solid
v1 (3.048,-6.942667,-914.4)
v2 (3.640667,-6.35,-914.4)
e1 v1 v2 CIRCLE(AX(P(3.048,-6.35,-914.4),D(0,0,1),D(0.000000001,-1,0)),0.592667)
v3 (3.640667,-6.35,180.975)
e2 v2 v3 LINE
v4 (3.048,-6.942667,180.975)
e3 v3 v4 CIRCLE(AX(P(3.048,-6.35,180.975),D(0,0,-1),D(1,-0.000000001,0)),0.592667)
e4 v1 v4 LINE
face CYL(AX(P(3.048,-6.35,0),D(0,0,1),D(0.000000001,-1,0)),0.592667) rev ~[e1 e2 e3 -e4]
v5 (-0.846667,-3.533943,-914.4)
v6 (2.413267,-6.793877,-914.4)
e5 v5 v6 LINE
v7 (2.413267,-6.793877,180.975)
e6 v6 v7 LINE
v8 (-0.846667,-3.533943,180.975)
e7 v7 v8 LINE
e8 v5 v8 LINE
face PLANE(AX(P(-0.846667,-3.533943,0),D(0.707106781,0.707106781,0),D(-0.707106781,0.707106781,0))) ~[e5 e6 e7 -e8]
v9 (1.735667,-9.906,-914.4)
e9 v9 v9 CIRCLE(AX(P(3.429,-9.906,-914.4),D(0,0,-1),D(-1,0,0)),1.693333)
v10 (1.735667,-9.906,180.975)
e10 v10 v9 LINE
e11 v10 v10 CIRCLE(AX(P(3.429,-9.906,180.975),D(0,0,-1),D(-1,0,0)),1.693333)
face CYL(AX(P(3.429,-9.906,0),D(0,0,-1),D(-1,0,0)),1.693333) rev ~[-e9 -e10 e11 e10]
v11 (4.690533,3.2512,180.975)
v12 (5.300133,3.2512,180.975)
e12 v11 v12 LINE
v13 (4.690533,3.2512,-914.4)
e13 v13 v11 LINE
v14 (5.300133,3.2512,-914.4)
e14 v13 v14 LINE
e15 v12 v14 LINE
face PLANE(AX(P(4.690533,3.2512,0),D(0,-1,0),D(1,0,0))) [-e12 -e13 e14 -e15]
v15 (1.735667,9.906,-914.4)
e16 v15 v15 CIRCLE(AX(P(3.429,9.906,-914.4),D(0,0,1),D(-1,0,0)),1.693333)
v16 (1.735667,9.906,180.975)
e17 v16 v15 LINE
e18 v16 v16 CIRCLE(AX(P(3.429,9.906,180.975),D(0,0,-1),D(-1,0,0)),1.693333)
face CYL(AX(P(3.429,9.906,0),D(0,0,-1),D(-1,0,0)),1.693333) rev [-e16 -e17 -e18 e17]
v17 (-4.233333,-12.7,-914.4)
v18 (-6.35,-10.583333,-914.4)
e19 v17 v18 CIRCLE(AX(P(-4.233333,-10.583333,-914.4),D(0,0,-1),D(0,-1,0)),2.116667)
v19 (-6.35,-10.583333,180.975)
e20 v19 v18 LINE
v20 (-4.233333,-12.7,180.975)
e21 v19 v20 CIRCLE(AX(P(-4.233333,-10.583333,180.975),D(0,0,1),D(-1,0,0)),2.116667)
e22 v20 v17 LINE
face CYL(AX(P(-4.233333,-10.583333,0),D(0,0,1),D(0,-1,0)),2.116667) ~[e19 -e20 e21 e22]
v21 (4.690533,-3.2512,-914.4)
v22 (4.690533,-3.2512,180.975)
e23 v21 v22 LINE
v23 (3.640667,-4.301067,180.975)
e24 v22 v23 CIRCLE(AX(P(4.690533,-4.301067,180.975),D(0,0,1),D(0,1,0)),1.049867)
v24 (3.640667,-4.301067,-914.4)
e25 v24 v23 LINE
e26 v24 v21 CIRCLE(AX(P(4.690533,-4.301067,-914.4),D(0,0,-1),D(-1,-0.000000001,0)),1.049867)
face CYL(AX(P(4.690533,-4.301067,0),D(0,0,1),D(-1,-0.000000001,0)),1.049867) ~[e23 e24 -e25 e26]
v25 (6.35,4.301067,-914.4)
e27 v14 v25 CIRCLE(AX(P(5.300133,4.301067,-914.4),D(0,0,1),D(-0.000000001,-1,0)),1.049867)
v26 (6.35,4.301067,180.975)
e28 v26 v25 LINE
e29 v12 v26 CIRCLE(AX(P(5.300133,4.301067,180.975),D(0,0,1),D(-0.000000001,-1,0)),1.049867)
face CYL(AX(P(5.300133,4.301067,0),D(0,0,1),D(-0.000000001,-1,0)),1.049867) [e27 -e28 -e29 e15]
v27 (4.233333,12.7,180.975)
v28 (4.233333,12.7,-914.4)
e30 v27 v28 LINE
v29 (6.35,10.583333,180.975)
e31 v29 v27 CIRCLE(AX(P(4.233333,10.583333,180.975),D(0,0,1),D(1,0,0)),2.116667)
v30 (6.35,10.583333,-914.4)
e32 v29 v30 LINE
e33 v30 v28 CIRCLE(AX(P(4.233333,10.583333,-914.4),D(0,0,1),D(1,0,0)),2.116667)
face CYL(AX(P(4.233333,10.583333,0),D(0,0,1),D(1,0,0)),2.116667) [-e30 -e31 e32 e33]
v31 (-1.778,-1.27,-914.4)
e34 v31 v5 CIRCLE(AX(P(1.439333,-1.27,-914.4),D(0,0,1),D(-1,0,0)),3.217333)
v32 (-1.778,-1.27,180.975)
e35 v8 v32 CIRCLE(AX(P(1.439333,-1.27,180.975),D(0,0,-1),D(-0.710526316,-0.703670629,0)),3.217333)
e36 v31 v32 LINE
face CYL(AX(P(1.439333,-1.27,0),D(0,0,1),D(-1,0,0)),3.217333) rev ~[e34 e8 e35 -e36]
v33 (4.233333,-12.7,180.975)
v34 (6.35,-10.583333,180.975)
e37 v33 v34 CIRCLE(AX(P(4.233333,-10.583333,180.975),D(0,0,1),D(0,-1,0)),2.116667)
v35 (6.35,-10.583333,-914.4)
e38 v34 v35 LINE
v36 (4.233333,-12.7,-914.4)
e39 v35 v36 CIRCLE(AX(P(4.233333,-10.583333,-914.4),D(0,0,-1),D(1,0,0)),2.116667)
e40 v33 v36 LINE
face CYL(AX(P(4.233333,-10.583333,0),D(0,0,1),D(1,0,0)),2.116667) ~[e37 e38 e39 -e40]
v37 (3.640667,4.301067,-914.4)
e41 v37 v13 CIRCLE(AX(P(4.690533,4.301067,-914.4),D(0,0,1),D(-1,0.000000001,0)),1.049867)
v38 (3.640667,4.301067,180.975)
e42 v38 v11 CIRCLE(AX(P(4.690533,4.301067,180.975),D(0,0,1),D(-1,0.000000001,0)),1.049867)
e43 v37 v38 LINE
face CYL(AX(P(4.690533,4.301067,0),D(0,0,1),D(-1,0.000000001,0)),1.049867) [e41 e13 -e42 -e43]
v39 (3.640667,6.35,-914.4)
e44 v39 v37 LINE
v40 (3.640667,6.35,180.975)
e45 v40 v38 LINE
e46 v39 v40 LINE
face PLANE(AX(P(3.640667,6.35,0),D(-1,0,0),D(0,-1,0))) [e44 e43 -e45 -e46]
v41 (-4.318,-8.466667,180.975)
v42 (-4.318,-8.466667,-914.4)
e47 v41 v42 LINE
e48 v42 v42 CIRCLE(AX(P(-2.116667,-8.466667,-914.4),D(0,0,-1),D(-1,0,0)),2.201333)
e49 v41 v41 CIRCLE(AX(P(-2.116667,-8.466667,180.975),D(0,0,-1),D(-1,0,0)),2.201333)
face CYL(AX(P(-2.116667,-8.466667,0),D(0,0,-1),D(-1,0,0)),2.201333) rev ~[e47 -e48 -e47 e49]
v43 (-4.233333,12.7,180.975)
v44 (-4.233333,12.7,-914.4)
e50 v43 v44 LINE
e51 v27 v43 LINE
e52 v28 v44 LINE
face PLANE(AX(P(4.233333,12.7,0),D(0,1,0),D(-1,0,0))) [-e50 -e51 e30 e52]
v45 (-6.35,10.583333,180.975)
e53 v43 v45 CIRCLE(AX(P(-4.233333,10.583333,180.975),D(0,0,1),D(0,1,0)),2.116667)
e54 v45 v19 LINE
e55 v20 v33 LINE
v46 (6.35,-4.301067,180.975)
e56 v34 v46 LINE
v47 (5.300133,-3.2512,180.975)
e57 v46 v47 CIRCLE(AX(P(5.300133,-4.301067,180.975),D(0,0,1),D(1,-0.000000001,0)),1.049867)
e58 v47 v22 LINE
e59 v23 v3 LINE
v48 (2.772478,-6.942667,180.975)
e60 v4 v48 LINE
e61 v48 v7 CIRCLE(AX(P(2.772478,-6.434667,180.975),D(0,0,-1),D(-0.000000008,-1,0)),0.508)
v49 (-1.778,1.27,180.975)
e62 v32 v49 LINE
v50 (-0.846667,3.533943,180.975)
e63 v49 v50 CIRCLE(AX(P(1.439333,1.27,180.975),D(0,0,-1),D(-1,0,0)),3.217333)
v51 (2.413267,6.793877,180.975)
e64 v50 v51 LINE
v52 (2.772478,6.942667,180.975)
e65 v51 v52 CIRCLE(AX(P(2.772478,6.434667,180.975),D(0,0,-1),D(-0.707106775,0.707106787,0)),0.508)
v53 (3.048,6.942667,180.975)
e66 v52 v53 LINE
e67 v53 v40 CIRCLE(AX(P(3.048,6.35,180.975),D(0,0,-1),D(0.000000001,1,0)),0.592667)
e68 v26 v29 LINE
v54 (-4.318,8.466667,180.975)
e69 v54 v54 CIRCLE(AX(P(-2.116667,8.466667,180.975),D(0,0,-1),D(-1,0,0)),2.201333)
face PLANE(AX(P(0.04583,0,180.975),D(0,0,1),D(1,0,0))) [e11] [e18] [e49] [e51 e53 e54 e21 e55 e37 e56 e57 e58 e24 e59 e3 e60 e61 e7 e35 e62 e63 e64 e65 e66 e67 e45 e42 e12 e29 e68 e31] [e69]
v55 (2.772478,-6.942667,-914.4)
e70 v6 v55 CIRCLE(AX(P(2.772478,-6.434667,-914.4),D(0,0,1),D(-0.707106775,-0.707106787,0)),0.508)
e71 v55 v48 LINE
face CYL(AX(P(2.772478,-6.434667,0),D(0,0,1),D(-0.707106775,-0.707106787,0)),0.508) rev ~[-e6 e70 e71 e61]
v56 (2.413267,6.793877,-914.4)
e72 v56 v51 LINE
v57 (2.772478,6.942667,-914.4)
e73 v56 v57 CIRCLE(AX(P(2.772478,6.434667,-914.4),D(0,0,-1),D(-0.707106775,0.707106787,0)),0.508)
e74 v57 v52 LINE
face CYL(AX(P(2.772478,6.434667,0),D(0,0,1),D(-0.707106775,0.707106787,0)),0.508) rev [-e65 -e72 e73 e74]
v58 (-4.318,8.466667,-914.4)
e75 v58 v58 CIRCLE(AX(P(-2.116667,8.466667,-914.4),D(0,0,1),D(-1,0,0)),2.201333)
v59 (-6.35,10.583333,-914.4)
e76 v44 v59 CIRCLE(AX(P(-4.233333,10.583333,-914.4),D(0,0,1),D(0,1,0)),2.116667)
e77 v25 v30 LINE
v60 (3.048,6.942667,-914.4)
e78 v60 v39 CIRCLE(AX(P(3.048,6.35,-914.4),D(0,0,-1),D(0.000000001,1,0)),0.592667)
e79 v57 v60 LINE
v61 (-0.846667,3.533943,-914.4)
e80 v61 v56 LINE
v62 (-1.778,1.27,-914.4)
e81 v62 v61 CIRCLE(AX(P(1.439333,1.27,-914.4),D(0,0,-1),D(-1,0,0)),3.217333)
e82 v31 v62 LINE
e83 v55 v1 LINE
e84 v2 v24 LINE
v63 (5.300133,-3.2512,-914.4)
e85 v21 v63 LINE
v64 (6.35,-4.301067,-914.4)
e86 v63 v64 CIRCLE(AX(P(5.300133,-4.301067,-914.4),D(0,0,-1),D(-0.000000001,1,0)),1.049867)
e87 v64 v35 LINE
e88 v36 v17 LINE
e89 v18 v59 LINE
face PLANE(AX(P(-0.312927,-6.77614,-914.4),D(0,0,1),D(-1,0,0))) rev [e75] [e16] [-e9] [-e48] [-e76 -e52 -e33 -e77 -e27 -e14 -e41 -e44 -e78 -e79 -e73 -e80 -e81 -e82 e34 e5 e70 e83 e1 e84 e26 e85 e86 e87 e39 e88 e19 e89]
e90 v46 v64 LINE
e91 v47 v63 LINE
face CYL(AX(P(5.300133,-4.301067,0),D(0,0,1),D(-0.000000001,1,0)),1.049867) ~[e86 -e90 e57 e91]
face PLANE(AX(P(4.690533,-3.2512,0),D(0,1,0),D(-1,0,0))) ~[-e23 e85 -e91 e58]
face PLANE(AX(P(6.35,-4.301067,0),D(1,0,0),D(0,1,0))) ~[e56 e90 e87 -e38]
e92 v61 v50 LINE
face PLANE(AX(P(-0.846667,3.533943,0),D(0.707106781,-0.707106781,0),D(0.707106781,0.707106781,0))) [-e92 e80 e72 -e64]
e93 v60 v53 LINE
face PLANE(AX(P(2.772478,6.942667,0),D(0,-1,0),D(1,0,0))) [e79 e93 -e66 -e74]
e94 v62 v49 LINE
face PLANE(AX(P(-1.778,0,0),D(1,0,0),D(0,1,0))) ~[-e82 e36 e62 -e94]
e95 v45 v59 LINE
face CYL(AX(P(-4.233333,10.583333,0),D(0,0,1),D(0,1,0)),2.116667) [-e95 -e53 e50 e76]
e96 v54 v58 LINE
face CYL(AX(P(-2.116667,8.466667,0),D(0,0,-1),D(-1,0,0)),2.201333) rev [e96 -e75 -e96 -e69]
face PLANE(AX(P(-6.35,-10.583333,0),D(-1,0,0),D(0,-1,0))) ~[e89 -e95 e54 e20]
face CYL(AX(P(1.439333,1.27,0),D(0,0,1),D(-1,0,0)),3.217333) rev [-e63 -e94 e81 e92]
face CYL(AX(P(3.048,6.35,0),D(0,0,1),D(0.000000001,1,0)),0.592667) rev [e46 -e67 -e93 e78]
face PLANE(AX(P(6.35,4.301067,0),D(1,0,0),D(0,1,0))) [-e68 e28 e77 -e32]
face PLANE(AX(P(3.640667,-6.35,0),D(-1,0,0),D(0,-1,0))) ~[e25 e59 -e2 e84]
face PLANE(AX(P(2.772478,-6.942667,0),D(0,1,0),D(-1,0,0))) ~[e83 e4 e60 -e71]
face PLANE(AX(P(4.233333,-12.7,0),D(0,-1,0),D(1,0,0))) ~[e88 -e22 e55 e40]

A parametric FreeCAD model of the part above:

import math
import FreeCAD as App
import Part
import Sketcher
from FreeCAD import Vector
Q = App.Units.Quantity

doc = App.newDocument("Part")
body = doc.addObject("PartDesign::Body", "Body")

sketch1 = body.newObject("Sketcher::SketchObject", "Sketch")
sketch1.AttachmentSupport = (doc.getObject("XY_Plane"), [""])
sketch1.MapMode = "FlatFace"
sketch1.addGeometry([
    Part.LineSegment(Vector(-1.778, 0, 0), Vector(-1.778, 1.27, 0)),
    Part.ArcOfCircle(Part.Circle(Vector(1.439333, 1.27, 0), Vector(0, 0, 1), 3.217333), math.radians(135.277754), math.radians(180)),
    Part.LineSegment(Vector(-0.846667, 3.533943, 0), Vector(2.413267, 6.793877, 0)),
    Part.ArcOfCircle(Part.Circle(Vector(2.772478, 6.434667, 0), Vector(0, 0, 1), 0.508), math.radians(90), math.radians(135)),
    Part.LineSegment(Vector(2.772478, 6.942667, 0), Vector(3.048, 6.942667, 0)),
    Part.ArcOfCircle(Part.Circle(Vector(3.048, 6.35, 0), Vector(0, 0, 1), 0.592667), math.radians(0), math.radians(90)),
    Part.LineSegment(Vector(3.640667, 6.35, 0), Vector(3.640667, 4.301067, 0)),
    Part.ArcOfCircle(Part.Circle(Vector(4.690533, 4.301067, 0), Vector(0, 0, 1), 1.049867), math.radians(180), math.radians(270)),
    Part.LineSegment(Vector(4.690533, 3.2512, 0), Vector(5.300133, 3.2512, 0)),
    Part.ArcOfCircle(Part.Circle(Vector(5.300133, 4.301067, 0), Vector(0, 0, 1), 1.049867), math.radians(-90), math.radians(0)),
    Part.LineSegment(Vector(6.35, 4.301067, 0), Vector(6.35, 10.583333, 0)),
    Part.ArcOfCircle(Part.Circle(Vector(4.233333, 10.583333, 0), Vector(0, 0, 1), 2.116667), math.radians(0), math.radians(90)),
    Part.LineSegment(Vector(4.233333, 12.7, 0), Vector(-4.233333, 12.7, 0)),
    Part.ArcOfCircle(Part.Circle(Vector(-4.233333, 10.583333, 0), Vector(0, 0, 1), 2.116667), math.radians(90), math.radians(180)),
    Part.LineSegment(Vector(-6.35, 10.583333, 0), Vector(-6.35, 0, 0)),
    Part.LineSegment(Vector(-6.35, 0, 0), Vector(-1.778, 0, 0)),
    Part.Circle(Vector(-2.116667, 8.466667, 0), Vector(0, 0, 1), 2.201333),
    Part.Circle(Vector(3.429, 9.906, 0), Vector(0, 0, 1), 1.693333),
], False)
sketch1.addConstraint([
    Sketcher.Constraint("Tangent", 0, 2, 1, 2),
    Sketcher.Constraint("Coincident", 1, 1, 2, 1),
    Sketcher.Constraint("Tangent", 2, 2, 3, 2),
    Sketcher.Constraint("Tangent", 3, 1, 4, 1),
    Sketcher.Constraint("Tangent", 4, 2, 5, 2),
    Sketcher.Constraint("Tangent", 5, 1, 6, 1),
    Sketcher.Constraint("Tangent", 6, 2, 7, 1),
    Sketcher.Constraint("Tangent", 7, 2, 8, 1),
    Sketcher.Constraint("Tangent", 8, 2, 9, 1),
    Sketcher.Constraint("Tangent", 9, 2, 10, 1),
    Sketcher.Constraint("Tangent", 10, 2, 11, 1),
    Sketcher.Constraint("Tangent", 11, 2, 12, 1),
    Sketcher.Constraint("Tangent", 12, 2, 13, 1),
    Sketcher.Constraint("Tangent", 13, 2, 14, 1),
    Sketcher.Constraint("Coincident", 14, 2, 15, 1),
    Sketcher.Constraint("Coincident", 15, 2, 0, 1),
    Sketcher.Constraint("Vertical", 0),
    Sketcher.Constraint("Horizontal", 4),
    Sketcher.Constraint("Vertical", 6),
    Sketcher.Constraint("Horizontal", 8),
    Sketcher.Constraint("Vertical", 10),
    Sketcher.Constraint("Horizontal", 12),
    Sketcher.Constraint("Vertical", 14),
    Sketcher.Constraint("Horizontal", 15),
    Sketcher.Constraint("Equal", 7, 9),
    Sketcher.Constraint("Equal", 11, 13),
    Sketcher.Constraint("PointOnObject", 14, 2, -1),
    Sketcher.Constraint("Radius", 3, Q("0.02 in")),
    Sketcher.Constraint("Angle", 2, Q("45 deg")),
    Sketcher.Constraint("DistanceX", 15, 1, 15, 2, Q("0.18 in")),
    Sketcher.Constraint("DistanceY", 0, 1, 0, 2, Q("0.05 in")),
    Sketcher.Constraint("DistanceY", -1, 1, 11, 2, Q("0.5 in")),
    Sketcher.Constraint("DistanceY", 1, 3, 5, 3, Q("0.2 in")),
    Sketcher.Constraint("DistanceX", 8, 1, 8, 2, Q("0.024 in")),
    Sketcher.Constraint("DistanceX", -1, 1, 5, 3, Q("0.12 in")),
    Sketcher.Constraint("DistanceY", -1, 1, 17, 3, Q("0.39 in")),
    Sketcher.Constraint("DistanceX", 0, 2, -1, 1, Q("0.07 in")),
    Sketcher.Constraint("DistanceX", -1, 1, 9, 2, Q("0.25 in")),
    Sketcher.Constraint("DistanceX", 1, 3, 11, 3, Q("0.11 in")),
    Sketcher.Constraint("DistanceY", 3, 3, 16, 3, Q("0.08 in")),
    Sketcher.Constraint("DistanceX", 16, 3, 11, 3, Q("0.25 in")),
    Sketcher.Constraint("DistanceX", 1, 1, 1, 3, Q("0.09 in")),
    Sketcher.Constraint("DistanceX", -1, 1, 17, 3, Q("0.135 in")),
    Sketcher.Constraint("DistanceY", -1, 1, 7, 2, Q("0.128 in")),
    Sketcher.Constraint("DistanceY", 7, 3, 3, 3, Q("0.084 in")),
    Sketcher.Constraint("DistanceX", 1, 3, 7, 3, Q("0.128 in")),
    Sketcher.Constraint("Diameter", 16, Q("4.402667 mm")),
    Sketcher.Constraint("Diameter", 17, Q("3.386667 mm")),
])
pad1 = body.newObject("PartDesign::Pad", "Pad")
pad1.Profile = sketch1
pad1.Length = Q("72 in")
pad1.Midplane = True
body2 = doc.addObject("PartDesign::Body", "Body001")
doc.recompute()

body2.BaseFeature = body
doc.recompute()

mirroring = doc.addObject("Part::Mirroring", "Mirroring")
mirroring.Source = body
mirroring.Base = Vector(0, 0, 0)
mirroring.Normal = Vector(0, 1, 0)
body3 = doc.addObject("PartDesign::Body", "Body002")
body3.BaseFeature = mirroring
boolean = body2.newObject("PartDesign::Boolean", "Boolean")
boolean.Type = "Fuse"
boolean.addObjects([body3])
doc.recompute()

sketch2 = body2.newObject("Sketcher::SketchObject", "Sketch001")
sketch2.AttachmentSupport = (doc.getObject("XY_Plane001"), [""])
sketch2.MapMode = "FlatFace"
sketch2.AttachmentOffset = App.Placement(Vector(0, 0, 36 * 25.4), App.Rotation())
sketch2.addGeometry([
    Part.LineSegment(Vector(-6.35, 10.583333, 0), Vector(-6.35, -10.583333, 0)),
    Part.ArcOfCircle(Part.Circle(Vector(-4.233333, -10.583333, 0), Vector(0, 0, 1), 2.116667), math.radians(180), math.radians(270)),
    Part.LineSegment(Vector(-4.233333, -12.7, 0), Vector(4.233333, -12.7, 0)),
    Part.ArcOfCircle(Part.Circle(Vector(4.233333, -10.583333, 0), Vector(0, 0, 1), 2.116667), math.radians(-90), math.radians(0)),
    Part.LineSegment(Vector(6.35, -10.583333, 0), Vector(6.35, -4.301067, 0)),
    Part.ArcOfCircle(Part.Circle(Vector(5.300133, -4.301067, 0), Vector(0, 0, 1), 1.049867), math.radians(0), math.radians(90)),
    Part.LineSegment(Vector(5.300133, -3.2512, 0), Vector(4.690533, -3.2512, 0)),
    Part.ArcOfCircle(Part.Circle(Vector(4.690533, -4.301067, 0), Vector(0, 0, 1), 1.049867), math.radians(90), math.radians(180)),
    Part.LineSegment(Vector(3.640667, -4.301067, 0), Vector(3.640667, -6.35, 0)),
    Part.ArcOfCircle(Part.Circle(Vector(3.048, -6.35, 0), Vector(0, 0, 1), 0.592667), math.radians(-90), math.radians(0)),
    Part.LineSegment(Vector(3.048, -6.942667, 0), Vector(2.772478, -6.942667, 0)),
    Part.ArcOfCircle(Part.Circle(Vector(2.772478, -6.434667, 0), Vector(0, 0, 1), 0.508), math.radians(-135), math.radians(-90)),
    Part.LineSegment(Vector(2.413267, -6.793877, 0), Vector(-0.846667, -3.533943, 0)),
    Part.ArcOfCircle(Part.Circle(Vector(1.439333, -1.27, 0), Vector(0, 0, 1), 3.217333), math.radians(-180), math.radians(-135.277754)),
    Part.LineSegment(Vector(-1.778, -1.27, 0), Vector(-1.778, 1.27, 0)),
    Part.ArcOfCircle(Part.Circle(Vector(1.439333, 1.27, 0), Vector(0, 0, 1), 3.217333), math.radians(135.277754), math.radians(180)),
    Part.LineSegment(Vector(-0.846667, 3.533943, 0), Vector(2.413267, 6.793877, 0)),
    Part.ArcOfCircle(Part.Circle(Vector(2.772478, 6.434667, 0), Vector(0, 0, 1), 0.508), math.radians(90), math.radians(135)),
    Part.LineSegment(Vector(2.772478, 6.942667, 0), Vector(3.048, 6.942667, 0)),
    Part.ArcOfCircle(Part.Circle(Vector(3.048, 6.35, 0), Vector(0, 0, 1), 0.592667), math.radians(0), math.radians(90)),
    Part.LineSegment(Vector(3.640667, 6.35, 0), Vector(3.640667, 4.301067, 0)),
    Part.ArcOfCircle(Part.Circle(Vector(4.690533, 4.301067, 0), Vector(0, 0, 1), 1.049867), math.radians(180), math.radians(270)),
    Part.LineSegment(Vector(4.690533, 3.2512, 0), Vector(5.300133, 3.2512, 0)),
    Part.ArcOfCircle(Part.Circle(Vector(5.300133, 4.301067, 0), Vector(0, 0, 1), 1.049867), math.radians(-90), math.radians(0)),
    Part.LineSegment(Vector(6.35, 4.301067, 0), Vector(6.35, 10.583333, 0)),
    Part.ArcOfCircle(Part.Circle(Vector(4.233333, 10.583333, 0), Vector(0, 0, 1), 2.116667), math.radians(0), math.radians(90)),
    Part.LineSegment(Vector(4.233333, 12.7, 0), Vector(-4.233333, 12.7, 0)),
    Part.ArcOfCircle(Part.Circle(Vector(-4.233333, 10.583333, 0), Vector(0, 0, 1), 2.116667), math.radians(90), math.radians(180)),
], False)
sketch2.addConstraint([
    Sketcher.Constraint("Tangent", 0, 2, 1, 1),
    Sketcher.Constraint("Tangent", 1, 2, 2, 1),
    Sketcher.Constraint("Tangent", 2, 2, 3, 1),
    Sketcher.Constraint("Tangent", 3, 2, 4, 1),
    Sketcher.Constraint("Tangent", 4, 2, 5, 1),
    Sketcher.Constraint("Tangent", 5, 2, 6, 1),
    Sketcher.Constraint("Tangent", 6, 2, 7, 1),
    Sketcher.Constraint("Tangent", 7, 2, 8, 1),
    Sketcher.Constraint("Tangent", 8, 2, 9, 2),
    Sketcher.Constraint("Tangent", 9, 1, 10, 1),
    Sketcher.Constraint("Tangent", 10, 2, 11, 2),
    Sketcher.Constraint("Tangent", 11, 1, 12, 1),
    Sketcher.Constraint("Coincident", 12, 2, 13, 2),
    Sketcher.Constraint("Tangent", 13, 1, 14, 1),
    Sketcher.Constraint("Tangent", 14, 2, 15, 2),
    Sketcher.Constraint("Coincident", 15, 1, 16, 1),
    Sketcher.Constraint("Tangent", 16, 2, 17, 2),
    Sketcher.Constraint("Tangent", 17, 1, 18, 1),
    Sketcher.Constraint("Tangent", 18, 2, 19, 2),
    Sketcher.Constraint("Tangent", 19, 1, 20, 1),
    Sketcher.Constraint("Tangent", 20, 2, 21, 1),
    Sketcher.Constraint("Tangent", 21, 2, 22, 1),
    Sketcher.Constraint("Tangent", 22, 2, 23, 1),
    Sketcher.Constraint("Tangent", 23, 2, 24, 1),
    Sketcher.Constraint("Tangent", 24, 2, 25, 1),
    Sketcher.Constraint("Tangent", 25, 2, 26, 1),
    Sketcher.Constraint("Tangent", 26, 2, 27, 1),
    Sketcher.Constraint("Tangent", 27, 2, 0, 1),
    Sketcher.Constraint("Vertical", 0),
    Sketcher.Constraint("Horizontal", 2),
    Sketcher.Constraint("Vertical", 4),
    Sketcher.Constraint("Horizontal", 6),
    Sketcher.Constraint("Vertical", 8),
    Sketcher.Constraint("Horizontal", 10),
    Sketcher.Constraint("Vertical", 14),
    Sketcher.Constraint("Horizontal", 18),
    Sketcher.Constraint("Vertical", 20),
    Sketcher.Constraint("Horizontal", 22),
    Sketcher.Constraint("Vertical", 24),
    Sketcher.Constraint("Horizontal", 26),
    Sketcher.Constraint("Equal", 1, 3),
    Sketcher.Constraint("Equal", 5, 7),
    Sketcher.Constraint("Equal", 13, 15),
    Sketcher.Constraint("Equal", 11, 17),
    Sketcher.Constraint("Equal", 9, 19),
    Sketcher.Constraint("Equal", 7, 21),
    Sketcher.Constraint("Equal", 21, 23),
    Sketcher.Constraint("Equal", 3, 25),
    Sketcher.Constraint("Equal", 25, 27),
    Sketcher.Constraint("Symmetric", 1, 3, 25, 3, -1, 1),
    Sketcher.Constraint("Symmetric", 11, 3, 17, 3, -1),
    Sketcher.Constraint("Symmetric", 7, 3, 21, 3, -1),
    Sketcher.Constraint("Symmetric", 12, 2, 15, 1, -1),
    Sketcher.Constraint("Perpendicular", 12, 16),
    Sketcher.Constraint("Vertical", 5, 3, 23, 3),
    Sketcher.Constraint("Radius", 11, Q("0.02 in")),
    Sketcher.Constraint("DistanceY", 14, 1, 14, 2, Q("0.1 in")),
    Sketcher.Constraint("DistanceY", 1, 2, -1, 1, Q("0.5 in")),
    Sketcher.Constraint("DistanceY", 9, 3, 13, 3, Q("0.2 in")),
    Sketcher.Constraint("DistanceX", 6, 2, 6, 1, Q("0.024 in")),
    Sketcher.Constraint("DistanceX", -1, 1, 9, 3, Q("0.12 in")),
    Sketcher.Constraint("DistanceX", 0, 2, -1, 1, Q("0.25 in")),
    Sketcher.Constraint("DistanceX", 13, 1, -1, 1, Q("0.07 in")),
    Sketcher.Constraint("DistanceX", 13, 3, 3, 3, Q("0.11 in")),
    Sketcher.Constraint("DistanceX", 12, 2, 13, 3, Q("0.09 in")),
    Sketcher.Constraint("DistanceY", 5, 2, -1, 1, Q("0.128 in")),
    Sketcher.Constraint("DistanceX", 3, 3, 5, 3, Q("0.042 in")),
    Sketcher.Constraint("DistanceY", 11, 3, 7, 3, Q("0.084 in")),
])
pocket1 = body2.newObject("PartDesign::Pocket", "Pocket")
pocket1.Profile = sketch2
pocket1.Length = Q("28.875 in")
mirroring.Visibility = False

doc.recompute()
